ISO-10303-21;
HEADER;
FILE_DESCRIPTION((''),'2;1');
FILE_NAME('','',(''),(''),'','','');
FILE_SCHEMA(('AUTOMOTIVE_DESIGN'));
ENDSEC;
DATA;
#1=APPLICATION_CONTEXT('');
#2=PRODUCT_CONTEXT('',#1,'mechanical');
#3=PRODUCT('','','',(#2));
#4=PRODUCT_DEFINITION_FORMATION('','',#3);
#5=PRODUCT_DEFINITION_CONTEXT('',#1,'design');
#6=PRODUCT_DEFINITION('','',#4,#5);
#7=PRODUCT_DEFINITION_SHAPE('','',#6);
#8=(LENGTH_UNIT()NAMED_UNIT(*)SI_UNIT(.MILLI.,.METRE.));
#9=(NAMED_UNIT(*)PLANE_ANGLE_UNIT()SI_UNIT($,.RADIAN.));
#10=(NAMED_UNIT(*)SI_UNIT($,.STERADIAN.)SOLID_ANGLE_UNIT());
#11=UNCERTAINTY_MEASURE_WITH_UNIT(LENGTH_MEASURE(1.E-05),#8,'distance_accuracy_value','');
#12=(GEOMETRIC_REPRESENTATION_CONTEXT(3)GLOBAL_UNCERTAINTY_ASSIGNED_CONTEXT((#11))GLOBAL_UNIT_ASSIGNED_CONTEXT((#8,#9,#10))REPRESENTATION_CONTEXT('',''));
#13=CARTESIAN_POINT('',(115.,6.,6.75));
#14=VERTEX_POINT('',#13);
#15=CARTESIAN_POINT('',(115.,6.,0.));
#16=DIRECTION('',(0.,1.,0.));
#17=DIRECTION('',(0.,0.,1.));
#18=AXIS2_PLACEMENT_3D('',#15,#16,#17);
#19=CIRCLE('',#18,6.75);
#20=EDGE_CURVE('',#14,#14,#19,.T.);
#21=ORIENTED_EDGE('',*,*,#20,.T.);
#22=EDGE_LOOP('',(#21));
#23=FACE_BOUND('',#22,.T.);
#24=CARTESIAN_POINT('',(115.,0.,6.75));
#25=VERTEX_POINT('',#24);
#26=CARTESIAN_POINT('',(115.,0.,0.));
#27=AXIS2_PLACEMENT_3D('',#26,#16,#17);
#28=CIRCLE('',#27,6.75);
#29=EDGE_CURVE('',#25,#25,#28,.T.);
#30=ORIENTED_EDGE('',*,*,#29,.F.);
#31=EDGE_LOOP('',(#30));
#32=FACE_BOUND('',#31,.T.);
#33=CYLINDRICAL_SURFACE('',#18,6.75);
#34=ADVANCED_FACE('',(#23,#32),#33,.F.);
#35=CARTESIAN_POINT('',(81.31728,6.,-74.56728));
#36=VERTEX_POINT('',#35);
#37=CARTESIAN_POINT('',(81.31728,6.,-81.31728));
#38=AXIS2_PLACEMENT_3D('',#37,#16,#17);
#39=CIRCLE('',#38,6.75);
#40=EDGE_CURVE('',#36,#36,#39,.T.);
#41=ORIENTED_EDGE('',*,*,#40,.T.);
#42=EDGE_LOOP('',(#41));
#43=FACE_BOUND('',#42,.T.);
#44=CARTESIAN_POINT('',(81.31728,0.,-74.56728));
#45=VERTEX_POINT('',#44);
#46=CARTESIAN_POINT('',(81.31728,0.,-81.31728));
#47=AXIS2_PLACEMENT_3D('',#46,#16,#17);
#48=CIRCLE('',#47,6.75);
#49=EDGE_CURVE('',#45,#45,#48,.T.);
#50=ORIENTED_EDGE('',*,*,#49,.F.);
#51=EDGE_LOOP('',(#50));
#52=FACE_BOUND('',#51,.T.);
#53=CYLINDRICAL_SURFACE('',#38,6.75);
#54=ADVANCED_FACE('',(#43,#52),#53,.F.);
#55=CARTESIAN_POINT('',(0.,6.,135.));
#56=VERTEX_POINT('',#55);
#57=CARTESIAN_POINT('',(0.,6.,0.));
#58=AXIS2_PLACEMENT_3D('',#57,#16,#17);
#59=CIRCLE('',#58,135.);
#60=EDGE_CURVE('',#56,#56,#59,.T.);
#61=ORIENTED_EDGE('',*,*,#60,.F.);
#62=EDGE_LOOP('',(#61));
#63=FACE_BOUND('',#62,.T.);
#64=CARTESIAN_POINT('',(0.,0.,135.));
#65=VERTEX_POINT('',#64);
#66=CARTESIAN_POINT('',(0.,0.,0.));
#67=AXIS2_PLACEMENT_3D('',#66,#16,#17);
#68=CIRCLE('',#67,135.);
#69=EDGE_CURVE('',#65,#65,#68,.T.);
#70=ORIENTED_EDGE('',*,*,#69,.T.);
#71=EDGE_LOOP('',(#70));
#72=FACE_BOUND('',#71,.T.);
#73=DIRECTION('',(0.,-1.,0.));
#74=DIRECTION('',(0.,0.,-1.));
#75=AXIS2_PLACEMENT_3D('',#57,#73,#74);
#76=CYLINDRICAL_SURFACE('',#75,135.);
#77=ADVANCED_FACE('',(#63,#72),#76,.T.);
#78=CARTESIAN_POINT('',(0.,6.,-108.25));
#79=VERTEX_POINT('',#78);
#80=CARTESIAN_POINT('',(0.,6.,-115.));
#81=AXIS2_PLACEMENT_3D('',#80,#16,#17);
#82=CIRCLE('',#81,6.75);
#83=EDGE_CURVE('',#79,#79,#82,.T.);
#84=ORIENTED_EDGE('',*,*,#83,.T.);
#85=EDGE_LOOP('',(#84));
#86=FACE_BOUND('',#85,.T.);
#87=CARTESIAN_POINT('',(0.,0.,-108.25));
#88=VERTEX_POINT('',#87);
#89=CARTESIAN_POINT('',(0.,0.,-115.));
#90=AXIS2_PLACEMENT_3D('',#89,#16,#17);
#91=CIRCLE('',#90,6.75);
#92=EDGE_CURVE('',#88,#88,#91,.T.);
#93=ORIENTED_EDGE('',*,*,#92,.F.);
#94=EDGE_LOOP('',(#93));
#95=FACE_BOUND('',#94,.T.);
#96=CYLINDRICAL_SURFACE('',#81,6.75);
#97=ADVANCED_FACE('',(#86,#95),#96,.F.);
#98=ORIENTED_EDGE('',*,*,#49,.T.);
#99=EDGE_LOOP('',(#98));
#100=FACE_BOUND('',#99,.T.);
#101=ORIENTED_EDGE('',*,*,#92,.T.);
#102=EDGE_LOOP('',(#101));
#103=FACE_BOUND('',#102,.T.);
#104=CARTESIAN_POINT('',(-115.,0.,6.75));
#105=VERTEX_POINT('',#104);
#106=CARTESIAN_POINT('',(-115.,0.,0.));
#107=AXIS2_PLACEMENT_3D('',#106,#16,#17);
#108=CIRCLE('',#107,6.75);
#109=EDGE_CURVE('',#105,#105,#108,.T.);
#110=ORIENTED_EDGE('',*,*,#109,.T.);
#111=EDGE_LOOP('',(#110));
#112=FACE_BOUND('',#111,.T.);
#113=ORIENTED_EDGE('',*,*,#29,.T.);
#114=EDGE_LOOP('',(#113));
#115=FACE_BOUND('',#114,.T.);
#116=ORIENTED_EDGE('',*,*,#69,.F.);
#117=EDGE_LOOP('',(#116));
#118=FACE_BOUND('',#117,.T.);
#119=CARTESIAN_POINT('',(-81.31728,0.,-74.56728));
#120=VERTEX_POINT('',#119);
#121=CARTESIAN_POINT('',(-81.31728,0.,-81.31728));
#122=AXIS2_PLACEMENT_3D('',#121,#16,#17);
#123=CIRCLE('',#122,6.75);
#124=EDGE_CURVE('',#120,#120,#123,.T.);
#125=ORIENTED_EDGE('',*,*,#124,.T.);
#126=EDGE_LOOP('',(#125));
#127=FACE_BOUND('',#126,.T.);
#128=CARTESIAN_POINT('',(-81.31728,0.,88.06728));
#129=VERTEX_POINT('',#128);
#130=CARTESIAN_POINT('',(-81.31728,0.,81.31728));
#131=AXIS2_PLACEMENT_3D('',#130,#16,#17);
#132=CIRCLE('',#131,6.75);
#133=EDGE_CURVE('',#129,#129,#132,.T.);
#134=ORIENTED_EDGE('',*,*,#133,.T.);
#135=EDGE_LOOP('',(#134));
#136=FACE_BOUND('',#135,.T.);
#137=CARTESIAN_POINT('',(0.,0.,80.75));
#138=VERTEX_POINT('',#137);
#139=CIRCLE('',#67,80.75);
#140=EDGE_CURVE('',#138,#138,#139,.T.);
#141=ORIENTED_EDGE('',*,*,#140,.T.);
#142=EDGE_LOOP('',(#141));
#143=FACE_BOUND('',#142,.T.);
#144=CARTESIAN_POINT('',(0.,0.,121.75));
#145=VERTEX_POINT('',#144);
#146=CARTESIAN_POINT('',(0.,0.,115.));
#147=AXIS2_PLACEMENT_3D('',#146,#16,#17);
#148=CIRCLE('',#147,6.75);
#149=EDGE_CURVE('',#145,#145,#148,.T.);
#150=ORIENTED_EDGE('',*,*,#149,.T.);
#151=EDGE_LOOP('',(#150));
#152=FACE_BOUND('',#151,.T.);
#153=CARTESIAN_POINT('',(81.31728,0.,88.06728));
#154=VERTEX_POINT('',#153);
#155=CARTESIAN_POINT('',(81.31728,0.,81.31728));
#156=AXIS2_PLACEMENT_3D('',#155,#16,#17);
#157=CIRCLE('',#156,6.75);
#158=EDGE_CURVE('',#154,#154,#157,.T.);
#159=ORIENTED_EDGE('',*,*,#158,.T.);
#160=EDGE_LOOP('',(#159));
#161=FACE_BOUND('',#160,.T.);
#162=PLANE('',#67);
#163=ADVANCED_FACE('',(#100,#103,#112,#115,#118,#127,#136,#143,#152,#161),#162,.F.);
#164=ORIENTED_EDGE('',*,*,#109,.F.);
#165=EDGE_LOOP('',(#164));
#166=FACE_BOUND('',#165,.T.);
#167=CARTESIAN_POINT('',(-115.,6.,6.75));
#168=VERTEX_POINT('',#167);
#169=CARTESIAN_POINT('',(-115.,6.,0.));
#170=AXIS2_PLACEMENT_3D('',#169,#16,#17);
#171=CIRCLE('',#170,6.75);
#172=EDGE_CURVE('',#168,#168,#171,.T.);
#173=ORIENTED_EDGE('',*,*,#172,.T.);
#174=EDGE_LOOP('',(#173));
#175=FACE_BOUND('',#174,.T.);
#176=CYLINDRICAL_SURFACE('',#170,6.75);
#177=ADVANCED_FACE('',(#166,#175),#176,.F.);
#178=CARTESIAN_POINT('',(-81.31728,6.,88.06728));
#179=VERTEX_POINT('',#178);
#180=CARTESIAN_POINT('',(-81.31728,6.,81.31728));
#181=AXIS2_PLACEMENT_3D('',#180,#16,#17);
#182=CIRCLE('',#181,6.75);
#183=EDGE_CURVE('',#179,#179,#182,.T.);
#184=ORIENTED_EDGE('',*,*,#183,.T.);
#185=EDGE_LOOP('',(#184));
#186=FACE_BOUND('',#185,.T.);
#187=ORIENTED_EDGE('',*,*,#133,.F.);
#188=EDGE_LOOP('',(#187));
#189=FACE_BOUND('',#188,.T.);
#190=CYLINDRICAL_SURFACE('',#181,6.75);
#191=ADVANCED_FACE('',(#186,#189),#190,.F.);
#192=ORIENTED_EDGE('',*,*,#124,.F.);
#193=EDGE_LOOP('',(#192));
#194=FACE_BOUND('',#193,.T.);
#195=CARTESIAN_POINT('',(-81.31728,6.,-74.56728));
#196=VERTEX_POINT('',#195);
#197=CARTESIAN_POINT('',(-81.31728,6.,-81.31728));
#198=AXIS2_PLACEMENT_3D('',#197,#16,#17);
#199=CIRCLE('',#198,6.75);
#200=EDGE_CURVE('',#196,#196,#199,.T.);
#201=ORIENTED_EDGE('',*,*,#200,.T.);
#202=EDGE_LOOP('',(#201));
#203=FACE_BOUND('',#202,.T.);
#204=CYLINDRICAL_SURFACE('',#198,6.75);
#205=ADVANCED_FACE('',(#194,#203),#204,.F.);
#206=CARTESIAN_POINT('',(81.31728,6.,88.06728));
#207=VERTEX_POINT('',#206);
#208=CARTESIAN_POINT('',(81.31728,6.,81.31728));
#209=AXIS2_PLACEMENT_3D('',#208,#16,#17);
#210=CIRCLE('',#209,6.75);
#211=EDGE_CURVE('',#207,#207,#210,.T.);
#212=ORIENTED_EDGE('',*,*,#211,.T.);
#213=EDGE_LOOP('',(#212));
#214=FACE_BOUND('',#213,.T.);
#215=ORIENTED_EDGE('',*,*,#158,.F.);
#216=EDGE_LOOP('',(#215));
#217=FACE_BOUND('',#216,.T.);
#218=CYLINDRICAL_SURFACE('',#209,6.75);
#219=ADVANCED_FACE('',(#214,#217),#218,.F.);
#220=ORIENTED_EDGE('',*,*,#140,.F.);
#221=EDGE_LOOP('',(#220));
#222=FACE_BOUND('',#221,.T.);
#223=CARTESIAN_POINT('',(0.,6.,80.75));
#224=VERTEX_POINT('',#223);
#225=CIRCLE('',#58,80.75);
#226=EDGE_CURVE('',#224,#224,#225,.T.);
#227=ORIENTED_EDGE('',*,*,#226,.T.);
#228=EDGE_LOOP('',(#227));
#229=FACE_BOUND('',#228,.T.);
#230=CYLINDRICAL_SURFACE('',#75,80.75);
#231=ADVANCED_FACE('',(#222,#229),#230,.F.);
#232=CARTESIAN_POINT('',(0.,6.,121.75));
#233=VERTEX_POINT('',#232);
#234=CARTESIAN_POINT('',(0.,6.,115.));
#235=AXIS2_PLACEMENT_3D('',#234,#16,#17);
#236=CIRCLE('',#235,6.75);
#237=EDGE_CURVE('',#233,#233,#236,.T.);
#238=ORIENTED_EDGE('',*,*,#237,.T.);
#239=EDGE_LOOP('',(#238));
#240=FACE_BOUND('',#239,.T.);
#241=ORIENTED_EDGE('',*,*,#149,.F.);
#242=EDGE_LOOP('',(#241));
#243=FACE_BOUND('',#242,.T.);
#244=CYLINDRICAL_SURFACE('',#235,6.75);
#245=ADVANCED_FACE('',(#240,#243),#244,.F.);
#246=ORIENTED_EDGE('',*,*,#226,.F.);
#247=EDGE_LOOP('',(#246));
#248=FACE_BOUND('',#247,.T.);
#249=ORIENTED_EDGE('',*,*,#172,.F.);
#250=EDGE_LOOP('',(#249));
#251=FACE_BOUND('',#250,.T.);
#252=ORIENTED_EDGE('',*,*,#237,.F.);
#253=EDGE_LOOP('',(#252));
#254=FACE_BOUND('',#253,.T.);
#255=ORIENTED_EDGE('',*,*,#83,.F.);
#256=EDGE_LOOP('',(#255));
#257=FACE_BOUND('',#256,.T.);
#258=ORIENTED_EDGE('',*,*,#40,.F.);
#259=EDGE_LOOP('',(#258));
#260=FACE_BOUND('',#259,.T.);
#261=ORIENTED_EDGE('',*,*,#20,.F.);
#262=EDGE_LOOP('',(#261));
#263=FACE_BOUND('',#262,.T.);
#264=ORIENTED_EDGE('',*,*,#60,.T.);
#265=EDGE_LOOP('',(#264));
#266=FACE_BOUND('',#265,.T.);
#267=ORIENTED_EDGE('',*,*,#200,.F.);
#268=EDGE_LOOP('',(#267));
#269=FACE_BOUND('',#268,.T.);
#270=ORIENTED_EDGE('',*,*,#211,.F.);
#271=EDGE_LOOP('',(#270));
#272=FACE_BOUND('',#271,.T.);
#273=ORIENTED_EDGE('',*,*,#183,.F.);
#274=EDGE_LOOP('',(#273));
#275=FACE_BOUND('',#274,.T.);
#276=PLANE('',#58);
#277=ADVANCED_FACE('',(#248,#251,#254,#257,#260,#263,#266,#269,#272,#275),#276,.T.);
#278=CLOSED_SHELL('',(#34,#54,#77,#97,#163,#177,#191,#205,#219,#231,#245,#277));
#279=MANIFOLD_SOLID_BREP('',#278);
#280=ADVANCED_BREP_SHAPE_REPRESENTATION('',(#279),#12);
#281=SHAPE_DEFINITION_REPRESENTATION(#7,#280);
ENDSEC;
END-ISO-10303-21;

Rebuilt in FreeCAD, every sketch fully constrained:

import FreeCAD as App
import Part
import Sketcher
from FreeCAD import Vector

doc = App.newDocument("Part")
body = doc.addObject("PartDesign::Body", "Body")

# Sketch on XZ plane
sketch1 = doc.addObject("Sketcher::SketchObject", "Sketch")
body.addObject(sketch1)
sketch1.AttachmentSupport = (doc.XZ_Plane, [""])
sketch1.MapMode = "FlatFace"
sketch1.addGeometry([
    Part.Circle(Vector(0, 0, 0), Vector(0, 0, 1), 135),
    Part.Circle(Vector(0, 0, 0), Vector(0, 0, 1), 81),
], False)
sketch1.addConstraint([
    Sketcher.Constraint("Coincident", 0, 3, -1, 1),
    Sketcher.Constraint("Coincident", 1, 3, -1, 1),
    Sketcher.Constraint("Diameter", 0, 270.0),
    Sketcher.Constraint("Diameter", 1, 161.5),
])
pad1 = doc.addObject("PartDesign::Pad", "Pad")
body.addObject(pad1)
pad1.Profile = sketch1
pad1.Length = 6
pad1.Reversed = True

# Sketch on XZ plane
sketch2 = doc.addObject("Sketcher::SketchObject", "Sketch001")
body.addObject(sketch2)
sketch2.AttachmentSupport = (doc.XZ_Plane, [""])
sketch2.MapMode = "FlatFace"
sketch2.AttachmentOffset = App.Placement(Vector(0, 0, -6), App.Rotation())
sketch2.addGeometry([
    Part.Circle(Vector(0, -115, 0), Vector(0, 0, 1), 7),  # 0
    Part.Circle(Vector(81, -81, 0), Vector(0, 0, 1), 7),  # 1
    Part.Circle(Vector(115, 0, 0), Vector(0, 0, 1), 7),  # 2
    Part.Circle(Vector(81, 81, 0), Vector(0, 0, 1), 7),  # 3
    Part.Circle(Vector(0, 115, 0), Vector(0, 0, 1), 7),  # 4
    Part.Circle(Vector(-81, 81, 0), Vector(0, 0, 1), 7),  # 5
    Part.Circle(Vector(-115, 0, 0), Vector(0, 0, 1), 7),  # 6
    Part.Circle(Vector(-81, -81, 0), Vector(0, 0, 1), 7),  # 7
    Part.Circle(Vector(0, 0, 0), Vector(0, 0, 1), 7),  # 8
], False)
sketch2.addConstraint([
    Sketcher.Constraint("Coincident", 8, 3, -1, 1),
    Sketcher.Constraint("Equal", 0, 1),
    Sketcher.Constraint("Equal", 1, 2),
    Sketcher.Constraint("Equal", 2, 3),
    Sketcher.Constraint("Equal", 3, 4),
    Sketcher.Constraint("Equal", 4, 5),
    Sketcher.Constraint("Equal", 5, 6),
    Sketcher.Constraint("Equal", 6, 7),
    Sketcher.Constraint("Equal", 7, 8),
    Sketcher.Constraint("Symmetric", 0, 3, 4, 3, -1, 1),
    Sketcher.Constraint("Symmetric", 1, 3, 5, 3, -1, 1),
    Sketcher.Constraint("Symmetric", 2, 3, 6, 3, -1, 1),
    Sketcher.Constraint("Symmetric", 3, 3, 7, 3, -1, 1),
    Sketcher.Constraint("Symmetric", 3, 3, 5, 3, -2),
    Sketcher.Constraint("PointOnObject", 0, 3, -2),
    Sketcher.Constraint("PointOnObject", 2, 3, -1),
    Sketcher.Constraint("Diameter", 0, 13.5),
    Sketcher.Constraint("DistanceY", 0, 3, -1, 1, 115.0),
    Sketcher.Constraint("DistanceX", -1, 1, 2, 3, 115.0),
    Sketcher.Constraint("DistanceX", -1, 1, 1, 3, 81.31728),
    Sketcher.Constraint("DistanceY", 1, 3, -1, 1, 81.31728),
])
doc.recompute()
hole = doc.addObject("PartDesign::Hole", "Hole")
body.addObject(hole)
hole.Profile = sketch2
hole.ThreadType = "None"
hole.Diameter = 13.5
hole.DepthType = "ThroughAll"
hole.Reversed = True

doc.recompute()
